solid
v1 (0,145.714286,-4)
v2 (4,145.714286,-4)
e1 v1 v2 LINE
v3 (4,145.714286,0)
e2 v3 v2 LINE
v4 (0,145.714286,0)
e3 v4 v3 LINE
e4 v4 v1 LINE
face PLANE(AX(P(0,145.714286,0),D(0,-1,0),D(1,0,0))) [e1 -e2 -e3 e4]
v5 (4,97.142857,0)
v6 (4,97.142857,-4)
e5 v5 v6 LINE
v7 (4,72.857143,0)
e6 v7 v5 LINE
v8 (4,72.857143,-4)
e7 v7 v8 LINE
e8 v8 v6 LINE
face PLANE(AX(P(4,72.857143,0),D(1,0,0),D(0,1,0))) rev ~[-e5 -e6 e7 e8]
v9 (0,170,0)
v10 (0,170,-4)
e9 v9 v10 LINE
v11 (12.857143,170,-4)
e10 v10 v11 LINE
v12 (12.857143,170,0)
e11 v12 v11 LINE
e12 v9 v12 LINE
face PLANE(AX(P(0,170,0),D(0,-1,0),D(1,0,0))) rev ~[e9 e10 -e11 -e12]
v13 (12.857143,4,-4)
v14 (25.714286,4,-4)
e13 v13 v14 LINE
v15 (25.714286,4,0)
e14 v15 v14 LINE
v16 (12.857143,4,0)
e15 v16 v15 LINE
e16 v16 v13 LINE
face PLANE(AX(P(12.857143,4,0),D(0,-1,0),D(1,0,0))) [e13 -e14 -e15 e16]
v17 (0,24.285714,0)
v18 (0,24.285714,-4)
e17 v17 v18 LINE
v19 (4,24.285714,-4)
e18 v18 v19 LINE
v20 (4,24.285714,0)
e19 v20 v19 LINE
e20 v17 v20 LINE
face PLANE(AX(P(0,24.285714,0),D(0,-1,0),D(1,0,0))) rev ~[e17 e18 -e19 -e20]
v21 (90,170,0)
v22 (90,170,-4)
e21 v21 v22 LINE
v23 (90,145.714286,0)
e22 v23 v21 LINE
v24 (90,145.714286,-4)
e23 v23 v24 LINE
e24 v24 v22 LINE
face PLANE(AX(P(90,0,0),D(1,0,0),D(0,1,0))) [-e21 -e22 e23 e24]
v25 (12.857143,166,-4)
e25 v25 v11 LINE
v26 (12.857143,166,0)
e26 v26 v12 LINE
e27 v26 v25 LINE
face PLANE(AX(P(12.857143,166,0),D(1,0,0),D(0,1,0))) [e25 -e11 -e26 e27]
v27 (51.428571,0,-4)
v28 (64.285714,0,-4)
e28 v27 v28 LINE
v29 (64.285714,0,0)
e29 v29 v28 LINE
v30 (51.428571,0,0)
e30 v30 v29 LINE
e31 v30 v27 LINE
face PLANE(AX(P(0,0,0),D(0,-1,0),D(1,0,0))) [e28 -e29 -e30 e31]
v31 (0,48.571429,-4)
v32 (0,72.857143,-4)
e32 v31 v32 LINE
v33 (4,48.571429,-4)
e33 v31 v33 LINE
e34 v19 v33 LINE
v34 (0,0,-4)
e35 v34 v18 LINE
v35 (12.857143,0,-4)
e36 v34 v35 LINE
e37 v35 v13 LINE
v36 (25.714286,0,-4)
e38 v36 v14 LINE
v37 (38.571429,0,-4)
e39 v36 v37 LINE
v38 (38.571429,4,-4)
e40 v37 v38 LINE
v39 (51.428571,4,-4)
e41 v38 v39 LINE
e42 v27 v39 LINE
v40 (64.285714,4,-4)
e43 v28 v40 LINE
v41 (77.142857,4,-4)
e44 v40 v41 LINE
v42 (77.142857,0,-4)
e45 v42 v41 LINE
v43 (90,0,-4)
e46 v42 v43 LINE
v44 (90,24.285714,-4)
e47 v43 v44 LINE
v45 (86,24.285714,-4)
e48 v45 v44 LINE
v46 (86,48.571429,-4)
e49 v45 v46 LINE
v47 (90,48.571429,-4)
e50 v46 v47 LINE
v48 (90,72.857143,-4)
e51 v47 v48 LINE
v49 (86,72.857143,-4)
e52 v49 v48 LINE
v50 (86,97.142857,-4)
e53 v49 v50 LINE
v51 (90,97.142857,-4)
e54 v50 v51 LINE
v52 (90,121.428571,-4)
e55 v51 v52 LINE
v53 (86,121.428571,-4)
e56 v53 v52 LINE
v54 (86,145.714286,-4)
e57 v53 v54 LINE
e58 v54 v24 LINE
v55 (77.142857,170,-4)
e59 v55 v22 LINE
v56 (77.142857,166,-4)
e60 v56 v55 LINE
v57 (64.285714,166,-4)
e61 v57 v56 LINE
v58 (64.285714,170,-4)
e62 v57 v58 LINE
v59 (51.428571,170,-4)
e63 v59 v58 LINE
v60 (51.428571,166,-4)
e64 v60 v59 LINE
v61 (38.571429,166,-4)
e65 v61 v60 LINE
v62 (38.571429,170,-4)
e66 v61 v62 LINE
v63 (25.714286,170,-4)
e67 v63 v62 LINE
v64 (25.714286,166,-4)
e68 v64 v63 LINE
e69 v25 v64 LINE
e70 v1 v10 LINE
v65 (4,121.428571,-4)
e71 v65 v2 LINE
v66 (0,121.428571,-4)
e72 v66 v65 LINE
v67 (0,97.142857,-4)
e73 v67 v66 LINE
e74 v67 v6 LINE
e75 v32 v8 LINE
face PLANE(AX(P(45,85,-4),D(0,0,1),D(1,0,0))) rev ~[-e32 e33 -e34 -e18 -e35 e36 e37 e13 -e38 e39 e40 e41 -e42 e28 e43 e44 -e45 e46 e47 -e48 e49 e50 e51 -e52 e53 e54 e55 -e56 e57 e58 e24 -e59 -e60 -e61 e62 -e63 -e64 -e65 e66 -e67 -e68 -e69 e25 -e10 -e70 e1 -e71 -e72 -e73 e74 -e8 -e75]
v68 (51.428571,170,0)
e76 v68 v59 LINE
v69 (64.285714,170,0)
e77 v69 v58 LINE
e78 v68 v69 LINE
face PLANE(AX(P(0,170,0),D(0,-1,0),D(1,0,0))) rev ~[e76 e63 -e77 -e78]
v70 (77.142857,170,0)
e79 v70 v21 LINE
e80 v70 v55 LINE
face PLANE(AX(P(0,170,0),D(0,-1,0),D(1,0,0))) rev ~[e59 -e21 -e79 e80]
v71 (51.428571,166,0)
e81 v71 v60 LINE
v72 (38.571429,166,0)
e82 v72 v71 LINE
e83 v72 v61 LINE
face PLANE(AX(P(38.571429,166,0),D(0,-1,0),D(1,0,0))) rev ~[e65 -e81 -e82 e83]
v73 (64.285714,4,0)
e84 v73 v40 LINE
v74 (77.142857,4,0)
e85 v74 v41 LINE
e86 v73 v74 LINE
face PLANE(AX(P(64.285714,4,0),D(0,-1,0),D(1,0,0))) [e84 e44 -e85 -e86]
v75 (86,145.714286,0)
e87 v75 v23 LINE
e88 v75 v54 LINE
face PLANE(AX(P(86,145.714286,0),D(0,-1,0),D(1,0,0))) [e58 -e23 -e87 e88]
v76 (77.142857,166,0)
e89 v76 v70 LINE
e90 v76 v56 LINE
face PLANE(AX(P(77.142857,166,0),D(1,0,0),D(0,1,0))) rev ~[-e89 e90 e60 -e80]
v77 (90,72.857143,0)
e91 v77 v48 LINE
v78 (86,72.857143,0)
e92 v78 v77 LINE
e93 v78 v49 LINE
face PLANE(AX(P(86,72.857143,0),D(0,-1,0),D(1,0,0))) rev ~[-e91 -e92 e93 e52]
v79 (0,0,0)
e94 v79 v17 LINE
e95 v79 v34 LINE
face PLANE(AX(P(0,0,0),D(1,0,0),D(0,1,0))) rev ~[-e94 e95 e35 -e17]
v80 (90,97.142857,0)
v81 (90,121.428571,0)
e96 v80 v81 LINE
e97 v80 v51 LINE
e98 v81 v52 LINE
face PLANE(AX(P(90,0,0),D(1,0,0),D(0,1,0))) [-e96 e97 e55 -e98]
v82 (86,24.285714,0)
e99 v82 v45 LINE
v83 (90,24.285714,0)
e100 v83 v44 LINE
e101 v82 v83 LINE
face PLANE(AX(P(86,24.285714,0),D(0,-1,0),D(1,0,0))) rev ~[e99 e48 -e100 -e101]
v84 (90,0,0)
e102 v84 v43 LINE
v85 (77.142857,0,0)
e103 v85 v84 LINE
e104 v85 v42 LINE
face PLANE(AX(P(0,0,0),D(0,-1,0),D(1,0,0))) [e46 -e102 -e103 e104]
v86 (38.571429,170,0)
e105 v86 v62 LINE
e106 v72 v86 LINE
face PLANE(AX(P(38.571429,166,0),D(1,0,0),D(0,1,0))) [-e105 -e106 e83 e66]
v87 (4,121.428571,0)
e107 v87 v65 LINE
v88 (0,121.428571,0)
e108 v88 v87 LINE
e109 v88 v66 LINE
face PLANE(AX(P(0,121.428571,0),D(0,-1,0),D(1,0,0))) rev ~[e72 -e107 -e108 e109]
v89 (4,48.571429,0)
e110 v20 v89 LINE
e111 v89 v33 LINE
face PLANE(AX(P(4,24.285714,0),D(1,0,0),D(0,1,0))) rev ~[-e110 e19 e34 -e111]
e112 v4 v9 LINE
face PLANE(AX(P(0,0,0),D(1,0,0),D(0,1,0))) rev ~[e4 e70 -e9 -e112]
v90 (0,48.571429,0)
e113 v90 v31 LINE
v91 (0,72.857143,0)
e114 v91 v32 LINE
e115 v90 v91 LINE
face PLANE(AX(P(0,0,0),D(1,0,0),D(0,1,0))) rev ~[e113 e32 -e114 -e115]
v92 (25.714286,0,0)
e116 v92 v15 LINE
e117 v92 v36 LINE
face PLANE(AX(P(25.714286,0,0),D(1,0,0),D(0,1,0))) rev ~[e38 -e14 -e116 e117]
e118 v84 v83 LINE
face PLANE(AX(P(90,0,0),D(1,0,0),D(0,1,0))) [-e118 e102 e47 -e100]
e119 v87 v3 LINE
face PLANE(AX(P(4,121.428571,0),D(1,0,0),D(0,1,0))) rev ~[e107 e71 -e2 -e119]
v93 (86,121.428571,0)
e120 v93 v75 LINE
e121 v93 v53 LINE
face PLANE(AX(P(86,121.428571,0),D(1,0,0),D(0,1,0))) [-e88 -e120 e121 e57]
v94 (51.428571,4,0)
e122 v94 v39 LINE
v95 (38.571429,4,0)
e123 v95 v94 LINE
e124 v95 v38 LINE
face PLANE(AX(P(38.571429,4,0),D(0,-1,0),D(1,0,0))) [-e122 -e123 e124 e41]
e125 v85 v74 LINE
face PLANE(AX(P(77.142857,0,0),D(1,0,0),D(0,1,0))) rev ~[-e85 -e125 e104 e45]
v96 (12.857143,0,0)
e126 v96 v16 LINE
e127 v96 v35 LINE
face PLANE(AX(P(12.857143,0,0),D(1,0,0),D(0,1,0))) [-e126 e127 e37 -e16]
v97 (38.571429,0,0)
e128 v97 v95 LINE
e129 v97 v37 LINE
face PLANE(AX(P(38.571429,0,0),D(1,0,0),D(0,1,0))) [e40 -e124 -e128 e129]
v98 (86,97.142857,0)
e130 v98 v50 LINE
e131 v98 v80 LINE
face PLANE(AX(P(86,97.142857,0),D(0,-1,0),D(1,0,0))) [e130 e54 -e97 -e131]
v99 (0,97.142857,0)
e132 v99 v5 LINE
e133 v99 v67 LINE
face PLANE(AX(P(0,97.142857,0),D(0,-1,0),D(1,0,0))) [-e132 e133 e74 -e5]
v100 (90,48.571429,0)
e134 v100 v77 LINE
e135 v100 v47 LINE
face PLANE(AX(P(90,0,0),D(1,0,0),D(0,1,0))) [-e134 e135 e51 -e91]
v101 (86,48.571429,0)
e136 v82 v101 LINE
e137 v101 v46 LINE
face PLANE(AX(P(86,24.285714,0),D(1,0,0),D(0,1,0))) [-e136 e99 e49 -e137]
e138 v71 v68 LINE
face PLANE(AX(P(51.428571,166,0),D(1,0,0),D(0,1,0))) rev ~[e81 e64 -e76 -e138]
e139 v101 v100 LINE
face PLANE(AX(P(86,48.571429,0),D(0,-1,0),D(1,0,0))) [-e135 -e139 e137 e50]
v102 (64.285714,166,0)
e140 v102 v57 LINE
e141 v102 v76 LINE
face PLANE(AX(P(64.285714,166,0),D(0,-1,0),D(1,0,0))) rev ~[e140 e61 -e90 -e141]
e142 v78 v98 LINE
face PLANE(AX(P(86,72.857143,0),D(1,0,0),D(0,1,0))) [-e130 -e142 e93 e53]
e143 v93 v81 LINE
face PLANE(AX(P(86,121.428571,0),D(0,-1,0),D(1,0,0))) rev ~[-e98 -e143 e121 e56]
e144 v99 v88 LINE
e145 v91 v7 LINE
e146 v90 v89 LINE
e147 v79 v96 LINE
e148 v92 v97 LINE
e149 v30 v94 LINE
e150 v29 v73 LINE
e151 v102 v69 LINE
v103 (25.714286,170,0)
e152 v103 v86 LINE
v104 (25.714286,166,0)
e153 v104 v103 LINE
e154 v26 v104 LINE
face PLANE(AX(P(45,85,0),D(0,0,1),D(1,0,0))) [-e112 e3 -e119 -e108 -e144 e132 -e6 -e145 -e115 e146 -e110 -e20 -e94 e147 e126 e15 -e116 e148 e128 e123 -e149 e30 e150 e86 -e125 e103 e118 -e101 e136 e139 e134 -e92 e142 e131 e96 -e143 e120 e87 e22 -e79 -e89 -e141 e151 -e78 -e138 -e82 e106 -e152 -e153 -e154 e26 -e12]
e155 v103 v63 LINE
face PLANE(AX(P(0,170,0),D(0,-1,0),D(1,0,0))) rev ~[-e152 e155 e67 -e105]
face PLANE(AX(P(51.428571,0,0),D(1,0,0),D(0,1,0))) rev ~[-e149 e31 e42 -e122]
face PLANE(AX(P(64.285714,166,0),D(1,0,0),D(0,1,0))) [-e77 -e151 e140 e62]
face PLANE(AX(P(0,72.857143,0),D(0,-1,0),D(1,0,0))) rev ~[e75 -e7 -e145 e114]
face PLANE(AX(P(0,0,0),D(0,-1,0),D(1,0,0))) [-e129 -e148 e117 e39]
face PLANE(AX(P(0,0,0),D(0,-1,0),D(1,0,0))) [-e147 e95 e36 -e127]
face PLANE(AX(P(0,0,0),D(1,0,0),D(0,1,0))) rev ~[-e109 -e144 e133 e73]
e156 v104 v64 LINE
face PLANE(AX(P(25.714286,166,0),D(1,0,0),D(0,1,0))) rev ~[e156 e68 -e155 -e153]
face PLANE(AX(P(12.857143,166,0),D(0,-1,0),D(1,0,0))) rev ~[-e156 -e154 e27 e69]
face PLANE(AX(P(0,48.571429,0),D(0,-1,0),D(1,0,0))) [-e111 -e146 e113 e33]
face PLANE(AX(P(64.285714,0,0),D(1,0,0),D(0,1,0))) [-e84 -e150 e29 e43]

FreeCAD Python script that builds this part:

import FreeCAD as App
import Part
import Sketcher


def add_polygon(sketch, points):
    """Adds a closed chain of lines whose ends are joined by coincident constraints."""
    first, n = sketch.GeometryCount, len(points)
    for a, b in zip(points, points[1:] + points[:1]):
        sketch.addGeometry(Part.LineSegment(App.Vector(*a, 0), App.Vector(*b, 0)), False)
    for i in range(n):
        sketch.addConstraint(Sketcher.Constraint("Coincident", first + i, 2, first + (i + 1) % n, 1))

doc = App.newDocument("Part")
params = doc.addObject("Spreadsheet::Sheet", "Params")
for row, (alias, value) in enumerate([
    ("sketch1_width", "90 mm"),
    ("sketch1_height", "170 mm"),
    ("pad1_length", "4 mm"),
    ("sketch2_height", "4 mm"),
    ("linearpattern_pitch", "25.714286 mm"),
    ("sketch3_width", "4 mm"),
    ("linearpattern2_pitch", "48.571429 mm"),
    ("sketch4_height", "4 mm"),
    ("linearpattern3_pitch", "25.714286 mm"),
    ("sketch5_width", "4 mm"),
    ("linearpattern4_pitch", "48.571429 mm"),
], start=1):
    params.set(f"A{row}", alias)
    params.set(f"B{row}", "=" + value)
    params.setAlias(f"B{row}", alias)

body = doc.addObject("PartDesign::Body", "Body")

sketch1 = doc.addObject("Sketcher::SketchObject", "Sketch")
body.addObject(sketch1)
sketch1.AttachmentSupport = (doc.XY_Plane, [""])
sketch1.MapMode = "FlatFace"
add_polygon(sketch1, [(0, 170), (0, 0), (90, 0), (90, 170)])
sketch1.addConstraint([
    Sketcher.Constraint("Vertical", 0),
    Sketcher.Constraint("Horizontal", 1),
    Sketcher.Constraint("Vertical", 2),
    Sketcher.Constraint("Horizontal", 3),
    Sketcher.Constraint("Coincident", 0, 2, -1, 1),
    Sketcher.Constraint("DistanceX", 1, 1, 1, 2, 90.0),
    Sketcher.Constraint("DistanceY", 0, 2, 0, 1, 170.0),
])
sketch1.setExpression("Constraints[9]", "Params.sketch1_width")
sketch1.setExpression("Constraints[10]", "Params.sketch1_height")
pad1 = doc.addObject("PartDesign::Pad", "Pad")
body.addObject(pad1)
pad1.Profile = sketch1
pad1.setExpression("Length", "Params.pad1_length")
pad1.Reversed = True

sketch2 = doc.addObject("Sketcher::SketchObject", "Sketch001")
body.addObject(sketch2)
sketch2.AttachmentSupport = (doc.XY_Plane, [""])
sketch2.MapMode = "FlatFace"
add_polygon(sketch2, [(12.857143, 170), (12.857143, 166), (25.714286, 166), (25.714286, 170)])
sketch2.addConstraint([
    Sketcher.Constraint("Vertical", 0),
    Sketcher.Constraint("Horizontal", 1),
    Sketcher.Constraint("Vertical", 2),
    Sketcher.Constraint("Horizontal", 3),
    Sketcher.Constraint("DistanceY", 0, 2, 0, 1, 4.0),
    Sketcher.Constraint("DistanceY", -1, 1, 0, 2, 166.0),
    Sketcher.Constraint("DistanceX", 1, 1, 1, 2, 12.857143),
    Sketcher.Constraint("DistanceX", -1, 1, 0, 2, 12.857143),
])
sketch2.setExpression("Constraints[8]", "Params.sketch2_height")
pocket1 = doc.addObject("PartDesign::Pocket", "Pocket")
body.addObject(pocket1)
pocket1.Profile = sketch2
pocket1.Type = "ThroughAll"
doc.recompute()

linearpattern = doc.addObject("PartDesign::LinearPattern", "LinearPattern")
body.addObject(linearpattern)
linearpattern.Originals = [pocket1]
linearpattern.Direction = (doc.X_Axis, [""])
linearpattern.Mode = "offset"
linearpattern.setExpression("Offset", "Params.linearpattern_pitch")
linearpattern.Occurrences = 3
body.Tip = linearpattern

sketch3 = doc.addObject("Sketcher::SketchObject", "Sketch002")
body.addObject(sketch3)
sketch3.AttachmentSupport = (doc.XY_Plane, [""])
sketch3.MapMode = "FlatFace"
add_polygon(sketch3, [(0, 145.714286), (0, 121.428571), (4, 121.428571), (4, 145.714286)])
sketch3.addConstraint([
    Sketcher.Constraint("Vertical", 0),
    Sketcher.Constraint("Horizontal", 1),
    Sketcher.Constraint("Vertical", 2),
    Sketcher.Constraint("Horizontal", 3),
    Sketcher.Constraint("PointOnObject", 0, 2, -2),
    Sketcher.Constraint("DistanceX", 1, 1, 1, 2, 4.0),
    Sketcher.Constraint("DistanceY", 0, 2, 0, 1, 24.285714),
    Sketcher.Constraint("DistanceY", -1, 1, 0, 2, 121.428571),
])
sketch3.setExpression("Constraints[9]", "Params.sketch3_width")
pocket2 = doc.addObject("PartDesign::Pocket", "Pocket001")
body.addObject(pocket2)
pocket2.Profile = sketch3
pocket2.Type = "ThroughAll"
doc.recompute()

linearpattern2 = doc.addObject("PartDesign::LinearPattern", "LinearPattern001")
body.addObject(linearpattern2)
linearpattern2.Originals = [pocket2]
linearpattern2.Direction = (doc.Y_Axis, [""])
linearpattern2.Mode = "offset"
linearpattern2.setExpression("Offset", "Params.linearpattern2_pitch")
linearpattern2.Occurrences = 3
linearpattern2.Reversed = True
body.Tip = linearpattern2

sketch4 = doc.addObject("Sketcher::SketchObject", "Sketch003")
body.addObject(sketch4)
sketch4.AttachmentSupport = (doc.XY_Plane, [""])
sketch4.MapMode = "FlatFace"
add_polygon(sketch4, [(12.857143, 4), (12.857143, 0), (25.714286, 0), (25.714286, 4)])
sketch4.addConstraint([
    Sketcher.Constraint("Vertical", 0),
    Sketcher.Constraint("Horizontal", 1),
    Sketcher.Constraint("Vertical", 2),
    Sketcher.Constraint("Horizontal", 3),
    Sketcher.Constraint("PointOnObject", 0, 2, -1),
    Sketcher.Constraint("DistanceY", 0, 2, 0, 1, 4.0),
    Sketcher.Constraint("DistanceX", 1, 1, 1, 2, 12.857143),
    Sketcher.Constraint("DistanceX", -1, 1, 0, 2, 12.857143),
])
sketch4.setExpression("Constraints[9]", "Params.sketch4_height")
pocket3 = doc.addObject("PartDesign::Pocket", "Pocket002")
body.addObject(pocket3)
pocket3.Profile = sketch4
pocket3.Type = "ThroughAll"
doc.recompute()

linearpattern3 = doc.addObject("PartDesign::LinearPattern", "LinearPattern002")
body.addObject(linearpattern3)
linearpattern3.Originals = [pocket3]
linearpattern3.Direction = (doc.X_Axis, [""])
linearpattern3.Mode = "offset"
linearpattern3.setExpression("Offset", "Params.linearpattern3_pitch")
linearpattern3.Occurrences = 3
body.Tip = linearpattern3

sketch5 = doc.addObject("Sketcher::SketchObject", "Sketch004")
body.addObject(sketch5)
sketch5.AttachmentSupport = (doc.XY_Plane, [""])
sketch5.MapMode = "FlatFace"
add_polygon(sketch5, [(86, 145.714286), (86, 121.428571), (90, 121.428571), (90, 145.714286)])
sketch5.addConstraint([
    Sketcher.Constraint("Vertical", 0),
    Sketcher.Constraint("Horizontal", 1),
    Sketcher.Constraint("Vertical", 2),
    Sketcher.Constraint("Horizontal", 3),
    Sketcher.Constraint("DistanceX", 1, 1, 1, 2, 4.0),
    Sketcher.Constraint("DistanceX", -1, 1, 0, 2, 86.0),
    Sketcher.Constraint("DistanceY", 0, 2, 0, 1, 24.285714),
    Sketcher.Constraint("DistanceY", -1, 1, 0, 2, 121.428571),
])
sketch5.setExpression("Constraints[8]", "Params.sketch5_width")
pocket4 = doc.addObject("PartDesign::Pocket", "Pocket003")
body.addObject(pocket4)
pocket4.Profile = sketch5
pocket4.Type = "ThroughAll"
doc.recompute()

linearpattern4 = doc.addObject("PartDesign::LinearPattern", "LinearPattern003")
body.addObject(linearpattern4)
linearpattern4.Originals = [pocket4]
linearpattern4.Direction = (doc.Y_Axis, [""])
linearpattern4.Mode = "offset"
linearpattern4.setExpression("Offset", "Params.linearpattern4_pitch")
linearpattern4.Occurrences = 3
linearpattern4.Reversed = True
body.Tip = linearpattern4

doc.recompute()
